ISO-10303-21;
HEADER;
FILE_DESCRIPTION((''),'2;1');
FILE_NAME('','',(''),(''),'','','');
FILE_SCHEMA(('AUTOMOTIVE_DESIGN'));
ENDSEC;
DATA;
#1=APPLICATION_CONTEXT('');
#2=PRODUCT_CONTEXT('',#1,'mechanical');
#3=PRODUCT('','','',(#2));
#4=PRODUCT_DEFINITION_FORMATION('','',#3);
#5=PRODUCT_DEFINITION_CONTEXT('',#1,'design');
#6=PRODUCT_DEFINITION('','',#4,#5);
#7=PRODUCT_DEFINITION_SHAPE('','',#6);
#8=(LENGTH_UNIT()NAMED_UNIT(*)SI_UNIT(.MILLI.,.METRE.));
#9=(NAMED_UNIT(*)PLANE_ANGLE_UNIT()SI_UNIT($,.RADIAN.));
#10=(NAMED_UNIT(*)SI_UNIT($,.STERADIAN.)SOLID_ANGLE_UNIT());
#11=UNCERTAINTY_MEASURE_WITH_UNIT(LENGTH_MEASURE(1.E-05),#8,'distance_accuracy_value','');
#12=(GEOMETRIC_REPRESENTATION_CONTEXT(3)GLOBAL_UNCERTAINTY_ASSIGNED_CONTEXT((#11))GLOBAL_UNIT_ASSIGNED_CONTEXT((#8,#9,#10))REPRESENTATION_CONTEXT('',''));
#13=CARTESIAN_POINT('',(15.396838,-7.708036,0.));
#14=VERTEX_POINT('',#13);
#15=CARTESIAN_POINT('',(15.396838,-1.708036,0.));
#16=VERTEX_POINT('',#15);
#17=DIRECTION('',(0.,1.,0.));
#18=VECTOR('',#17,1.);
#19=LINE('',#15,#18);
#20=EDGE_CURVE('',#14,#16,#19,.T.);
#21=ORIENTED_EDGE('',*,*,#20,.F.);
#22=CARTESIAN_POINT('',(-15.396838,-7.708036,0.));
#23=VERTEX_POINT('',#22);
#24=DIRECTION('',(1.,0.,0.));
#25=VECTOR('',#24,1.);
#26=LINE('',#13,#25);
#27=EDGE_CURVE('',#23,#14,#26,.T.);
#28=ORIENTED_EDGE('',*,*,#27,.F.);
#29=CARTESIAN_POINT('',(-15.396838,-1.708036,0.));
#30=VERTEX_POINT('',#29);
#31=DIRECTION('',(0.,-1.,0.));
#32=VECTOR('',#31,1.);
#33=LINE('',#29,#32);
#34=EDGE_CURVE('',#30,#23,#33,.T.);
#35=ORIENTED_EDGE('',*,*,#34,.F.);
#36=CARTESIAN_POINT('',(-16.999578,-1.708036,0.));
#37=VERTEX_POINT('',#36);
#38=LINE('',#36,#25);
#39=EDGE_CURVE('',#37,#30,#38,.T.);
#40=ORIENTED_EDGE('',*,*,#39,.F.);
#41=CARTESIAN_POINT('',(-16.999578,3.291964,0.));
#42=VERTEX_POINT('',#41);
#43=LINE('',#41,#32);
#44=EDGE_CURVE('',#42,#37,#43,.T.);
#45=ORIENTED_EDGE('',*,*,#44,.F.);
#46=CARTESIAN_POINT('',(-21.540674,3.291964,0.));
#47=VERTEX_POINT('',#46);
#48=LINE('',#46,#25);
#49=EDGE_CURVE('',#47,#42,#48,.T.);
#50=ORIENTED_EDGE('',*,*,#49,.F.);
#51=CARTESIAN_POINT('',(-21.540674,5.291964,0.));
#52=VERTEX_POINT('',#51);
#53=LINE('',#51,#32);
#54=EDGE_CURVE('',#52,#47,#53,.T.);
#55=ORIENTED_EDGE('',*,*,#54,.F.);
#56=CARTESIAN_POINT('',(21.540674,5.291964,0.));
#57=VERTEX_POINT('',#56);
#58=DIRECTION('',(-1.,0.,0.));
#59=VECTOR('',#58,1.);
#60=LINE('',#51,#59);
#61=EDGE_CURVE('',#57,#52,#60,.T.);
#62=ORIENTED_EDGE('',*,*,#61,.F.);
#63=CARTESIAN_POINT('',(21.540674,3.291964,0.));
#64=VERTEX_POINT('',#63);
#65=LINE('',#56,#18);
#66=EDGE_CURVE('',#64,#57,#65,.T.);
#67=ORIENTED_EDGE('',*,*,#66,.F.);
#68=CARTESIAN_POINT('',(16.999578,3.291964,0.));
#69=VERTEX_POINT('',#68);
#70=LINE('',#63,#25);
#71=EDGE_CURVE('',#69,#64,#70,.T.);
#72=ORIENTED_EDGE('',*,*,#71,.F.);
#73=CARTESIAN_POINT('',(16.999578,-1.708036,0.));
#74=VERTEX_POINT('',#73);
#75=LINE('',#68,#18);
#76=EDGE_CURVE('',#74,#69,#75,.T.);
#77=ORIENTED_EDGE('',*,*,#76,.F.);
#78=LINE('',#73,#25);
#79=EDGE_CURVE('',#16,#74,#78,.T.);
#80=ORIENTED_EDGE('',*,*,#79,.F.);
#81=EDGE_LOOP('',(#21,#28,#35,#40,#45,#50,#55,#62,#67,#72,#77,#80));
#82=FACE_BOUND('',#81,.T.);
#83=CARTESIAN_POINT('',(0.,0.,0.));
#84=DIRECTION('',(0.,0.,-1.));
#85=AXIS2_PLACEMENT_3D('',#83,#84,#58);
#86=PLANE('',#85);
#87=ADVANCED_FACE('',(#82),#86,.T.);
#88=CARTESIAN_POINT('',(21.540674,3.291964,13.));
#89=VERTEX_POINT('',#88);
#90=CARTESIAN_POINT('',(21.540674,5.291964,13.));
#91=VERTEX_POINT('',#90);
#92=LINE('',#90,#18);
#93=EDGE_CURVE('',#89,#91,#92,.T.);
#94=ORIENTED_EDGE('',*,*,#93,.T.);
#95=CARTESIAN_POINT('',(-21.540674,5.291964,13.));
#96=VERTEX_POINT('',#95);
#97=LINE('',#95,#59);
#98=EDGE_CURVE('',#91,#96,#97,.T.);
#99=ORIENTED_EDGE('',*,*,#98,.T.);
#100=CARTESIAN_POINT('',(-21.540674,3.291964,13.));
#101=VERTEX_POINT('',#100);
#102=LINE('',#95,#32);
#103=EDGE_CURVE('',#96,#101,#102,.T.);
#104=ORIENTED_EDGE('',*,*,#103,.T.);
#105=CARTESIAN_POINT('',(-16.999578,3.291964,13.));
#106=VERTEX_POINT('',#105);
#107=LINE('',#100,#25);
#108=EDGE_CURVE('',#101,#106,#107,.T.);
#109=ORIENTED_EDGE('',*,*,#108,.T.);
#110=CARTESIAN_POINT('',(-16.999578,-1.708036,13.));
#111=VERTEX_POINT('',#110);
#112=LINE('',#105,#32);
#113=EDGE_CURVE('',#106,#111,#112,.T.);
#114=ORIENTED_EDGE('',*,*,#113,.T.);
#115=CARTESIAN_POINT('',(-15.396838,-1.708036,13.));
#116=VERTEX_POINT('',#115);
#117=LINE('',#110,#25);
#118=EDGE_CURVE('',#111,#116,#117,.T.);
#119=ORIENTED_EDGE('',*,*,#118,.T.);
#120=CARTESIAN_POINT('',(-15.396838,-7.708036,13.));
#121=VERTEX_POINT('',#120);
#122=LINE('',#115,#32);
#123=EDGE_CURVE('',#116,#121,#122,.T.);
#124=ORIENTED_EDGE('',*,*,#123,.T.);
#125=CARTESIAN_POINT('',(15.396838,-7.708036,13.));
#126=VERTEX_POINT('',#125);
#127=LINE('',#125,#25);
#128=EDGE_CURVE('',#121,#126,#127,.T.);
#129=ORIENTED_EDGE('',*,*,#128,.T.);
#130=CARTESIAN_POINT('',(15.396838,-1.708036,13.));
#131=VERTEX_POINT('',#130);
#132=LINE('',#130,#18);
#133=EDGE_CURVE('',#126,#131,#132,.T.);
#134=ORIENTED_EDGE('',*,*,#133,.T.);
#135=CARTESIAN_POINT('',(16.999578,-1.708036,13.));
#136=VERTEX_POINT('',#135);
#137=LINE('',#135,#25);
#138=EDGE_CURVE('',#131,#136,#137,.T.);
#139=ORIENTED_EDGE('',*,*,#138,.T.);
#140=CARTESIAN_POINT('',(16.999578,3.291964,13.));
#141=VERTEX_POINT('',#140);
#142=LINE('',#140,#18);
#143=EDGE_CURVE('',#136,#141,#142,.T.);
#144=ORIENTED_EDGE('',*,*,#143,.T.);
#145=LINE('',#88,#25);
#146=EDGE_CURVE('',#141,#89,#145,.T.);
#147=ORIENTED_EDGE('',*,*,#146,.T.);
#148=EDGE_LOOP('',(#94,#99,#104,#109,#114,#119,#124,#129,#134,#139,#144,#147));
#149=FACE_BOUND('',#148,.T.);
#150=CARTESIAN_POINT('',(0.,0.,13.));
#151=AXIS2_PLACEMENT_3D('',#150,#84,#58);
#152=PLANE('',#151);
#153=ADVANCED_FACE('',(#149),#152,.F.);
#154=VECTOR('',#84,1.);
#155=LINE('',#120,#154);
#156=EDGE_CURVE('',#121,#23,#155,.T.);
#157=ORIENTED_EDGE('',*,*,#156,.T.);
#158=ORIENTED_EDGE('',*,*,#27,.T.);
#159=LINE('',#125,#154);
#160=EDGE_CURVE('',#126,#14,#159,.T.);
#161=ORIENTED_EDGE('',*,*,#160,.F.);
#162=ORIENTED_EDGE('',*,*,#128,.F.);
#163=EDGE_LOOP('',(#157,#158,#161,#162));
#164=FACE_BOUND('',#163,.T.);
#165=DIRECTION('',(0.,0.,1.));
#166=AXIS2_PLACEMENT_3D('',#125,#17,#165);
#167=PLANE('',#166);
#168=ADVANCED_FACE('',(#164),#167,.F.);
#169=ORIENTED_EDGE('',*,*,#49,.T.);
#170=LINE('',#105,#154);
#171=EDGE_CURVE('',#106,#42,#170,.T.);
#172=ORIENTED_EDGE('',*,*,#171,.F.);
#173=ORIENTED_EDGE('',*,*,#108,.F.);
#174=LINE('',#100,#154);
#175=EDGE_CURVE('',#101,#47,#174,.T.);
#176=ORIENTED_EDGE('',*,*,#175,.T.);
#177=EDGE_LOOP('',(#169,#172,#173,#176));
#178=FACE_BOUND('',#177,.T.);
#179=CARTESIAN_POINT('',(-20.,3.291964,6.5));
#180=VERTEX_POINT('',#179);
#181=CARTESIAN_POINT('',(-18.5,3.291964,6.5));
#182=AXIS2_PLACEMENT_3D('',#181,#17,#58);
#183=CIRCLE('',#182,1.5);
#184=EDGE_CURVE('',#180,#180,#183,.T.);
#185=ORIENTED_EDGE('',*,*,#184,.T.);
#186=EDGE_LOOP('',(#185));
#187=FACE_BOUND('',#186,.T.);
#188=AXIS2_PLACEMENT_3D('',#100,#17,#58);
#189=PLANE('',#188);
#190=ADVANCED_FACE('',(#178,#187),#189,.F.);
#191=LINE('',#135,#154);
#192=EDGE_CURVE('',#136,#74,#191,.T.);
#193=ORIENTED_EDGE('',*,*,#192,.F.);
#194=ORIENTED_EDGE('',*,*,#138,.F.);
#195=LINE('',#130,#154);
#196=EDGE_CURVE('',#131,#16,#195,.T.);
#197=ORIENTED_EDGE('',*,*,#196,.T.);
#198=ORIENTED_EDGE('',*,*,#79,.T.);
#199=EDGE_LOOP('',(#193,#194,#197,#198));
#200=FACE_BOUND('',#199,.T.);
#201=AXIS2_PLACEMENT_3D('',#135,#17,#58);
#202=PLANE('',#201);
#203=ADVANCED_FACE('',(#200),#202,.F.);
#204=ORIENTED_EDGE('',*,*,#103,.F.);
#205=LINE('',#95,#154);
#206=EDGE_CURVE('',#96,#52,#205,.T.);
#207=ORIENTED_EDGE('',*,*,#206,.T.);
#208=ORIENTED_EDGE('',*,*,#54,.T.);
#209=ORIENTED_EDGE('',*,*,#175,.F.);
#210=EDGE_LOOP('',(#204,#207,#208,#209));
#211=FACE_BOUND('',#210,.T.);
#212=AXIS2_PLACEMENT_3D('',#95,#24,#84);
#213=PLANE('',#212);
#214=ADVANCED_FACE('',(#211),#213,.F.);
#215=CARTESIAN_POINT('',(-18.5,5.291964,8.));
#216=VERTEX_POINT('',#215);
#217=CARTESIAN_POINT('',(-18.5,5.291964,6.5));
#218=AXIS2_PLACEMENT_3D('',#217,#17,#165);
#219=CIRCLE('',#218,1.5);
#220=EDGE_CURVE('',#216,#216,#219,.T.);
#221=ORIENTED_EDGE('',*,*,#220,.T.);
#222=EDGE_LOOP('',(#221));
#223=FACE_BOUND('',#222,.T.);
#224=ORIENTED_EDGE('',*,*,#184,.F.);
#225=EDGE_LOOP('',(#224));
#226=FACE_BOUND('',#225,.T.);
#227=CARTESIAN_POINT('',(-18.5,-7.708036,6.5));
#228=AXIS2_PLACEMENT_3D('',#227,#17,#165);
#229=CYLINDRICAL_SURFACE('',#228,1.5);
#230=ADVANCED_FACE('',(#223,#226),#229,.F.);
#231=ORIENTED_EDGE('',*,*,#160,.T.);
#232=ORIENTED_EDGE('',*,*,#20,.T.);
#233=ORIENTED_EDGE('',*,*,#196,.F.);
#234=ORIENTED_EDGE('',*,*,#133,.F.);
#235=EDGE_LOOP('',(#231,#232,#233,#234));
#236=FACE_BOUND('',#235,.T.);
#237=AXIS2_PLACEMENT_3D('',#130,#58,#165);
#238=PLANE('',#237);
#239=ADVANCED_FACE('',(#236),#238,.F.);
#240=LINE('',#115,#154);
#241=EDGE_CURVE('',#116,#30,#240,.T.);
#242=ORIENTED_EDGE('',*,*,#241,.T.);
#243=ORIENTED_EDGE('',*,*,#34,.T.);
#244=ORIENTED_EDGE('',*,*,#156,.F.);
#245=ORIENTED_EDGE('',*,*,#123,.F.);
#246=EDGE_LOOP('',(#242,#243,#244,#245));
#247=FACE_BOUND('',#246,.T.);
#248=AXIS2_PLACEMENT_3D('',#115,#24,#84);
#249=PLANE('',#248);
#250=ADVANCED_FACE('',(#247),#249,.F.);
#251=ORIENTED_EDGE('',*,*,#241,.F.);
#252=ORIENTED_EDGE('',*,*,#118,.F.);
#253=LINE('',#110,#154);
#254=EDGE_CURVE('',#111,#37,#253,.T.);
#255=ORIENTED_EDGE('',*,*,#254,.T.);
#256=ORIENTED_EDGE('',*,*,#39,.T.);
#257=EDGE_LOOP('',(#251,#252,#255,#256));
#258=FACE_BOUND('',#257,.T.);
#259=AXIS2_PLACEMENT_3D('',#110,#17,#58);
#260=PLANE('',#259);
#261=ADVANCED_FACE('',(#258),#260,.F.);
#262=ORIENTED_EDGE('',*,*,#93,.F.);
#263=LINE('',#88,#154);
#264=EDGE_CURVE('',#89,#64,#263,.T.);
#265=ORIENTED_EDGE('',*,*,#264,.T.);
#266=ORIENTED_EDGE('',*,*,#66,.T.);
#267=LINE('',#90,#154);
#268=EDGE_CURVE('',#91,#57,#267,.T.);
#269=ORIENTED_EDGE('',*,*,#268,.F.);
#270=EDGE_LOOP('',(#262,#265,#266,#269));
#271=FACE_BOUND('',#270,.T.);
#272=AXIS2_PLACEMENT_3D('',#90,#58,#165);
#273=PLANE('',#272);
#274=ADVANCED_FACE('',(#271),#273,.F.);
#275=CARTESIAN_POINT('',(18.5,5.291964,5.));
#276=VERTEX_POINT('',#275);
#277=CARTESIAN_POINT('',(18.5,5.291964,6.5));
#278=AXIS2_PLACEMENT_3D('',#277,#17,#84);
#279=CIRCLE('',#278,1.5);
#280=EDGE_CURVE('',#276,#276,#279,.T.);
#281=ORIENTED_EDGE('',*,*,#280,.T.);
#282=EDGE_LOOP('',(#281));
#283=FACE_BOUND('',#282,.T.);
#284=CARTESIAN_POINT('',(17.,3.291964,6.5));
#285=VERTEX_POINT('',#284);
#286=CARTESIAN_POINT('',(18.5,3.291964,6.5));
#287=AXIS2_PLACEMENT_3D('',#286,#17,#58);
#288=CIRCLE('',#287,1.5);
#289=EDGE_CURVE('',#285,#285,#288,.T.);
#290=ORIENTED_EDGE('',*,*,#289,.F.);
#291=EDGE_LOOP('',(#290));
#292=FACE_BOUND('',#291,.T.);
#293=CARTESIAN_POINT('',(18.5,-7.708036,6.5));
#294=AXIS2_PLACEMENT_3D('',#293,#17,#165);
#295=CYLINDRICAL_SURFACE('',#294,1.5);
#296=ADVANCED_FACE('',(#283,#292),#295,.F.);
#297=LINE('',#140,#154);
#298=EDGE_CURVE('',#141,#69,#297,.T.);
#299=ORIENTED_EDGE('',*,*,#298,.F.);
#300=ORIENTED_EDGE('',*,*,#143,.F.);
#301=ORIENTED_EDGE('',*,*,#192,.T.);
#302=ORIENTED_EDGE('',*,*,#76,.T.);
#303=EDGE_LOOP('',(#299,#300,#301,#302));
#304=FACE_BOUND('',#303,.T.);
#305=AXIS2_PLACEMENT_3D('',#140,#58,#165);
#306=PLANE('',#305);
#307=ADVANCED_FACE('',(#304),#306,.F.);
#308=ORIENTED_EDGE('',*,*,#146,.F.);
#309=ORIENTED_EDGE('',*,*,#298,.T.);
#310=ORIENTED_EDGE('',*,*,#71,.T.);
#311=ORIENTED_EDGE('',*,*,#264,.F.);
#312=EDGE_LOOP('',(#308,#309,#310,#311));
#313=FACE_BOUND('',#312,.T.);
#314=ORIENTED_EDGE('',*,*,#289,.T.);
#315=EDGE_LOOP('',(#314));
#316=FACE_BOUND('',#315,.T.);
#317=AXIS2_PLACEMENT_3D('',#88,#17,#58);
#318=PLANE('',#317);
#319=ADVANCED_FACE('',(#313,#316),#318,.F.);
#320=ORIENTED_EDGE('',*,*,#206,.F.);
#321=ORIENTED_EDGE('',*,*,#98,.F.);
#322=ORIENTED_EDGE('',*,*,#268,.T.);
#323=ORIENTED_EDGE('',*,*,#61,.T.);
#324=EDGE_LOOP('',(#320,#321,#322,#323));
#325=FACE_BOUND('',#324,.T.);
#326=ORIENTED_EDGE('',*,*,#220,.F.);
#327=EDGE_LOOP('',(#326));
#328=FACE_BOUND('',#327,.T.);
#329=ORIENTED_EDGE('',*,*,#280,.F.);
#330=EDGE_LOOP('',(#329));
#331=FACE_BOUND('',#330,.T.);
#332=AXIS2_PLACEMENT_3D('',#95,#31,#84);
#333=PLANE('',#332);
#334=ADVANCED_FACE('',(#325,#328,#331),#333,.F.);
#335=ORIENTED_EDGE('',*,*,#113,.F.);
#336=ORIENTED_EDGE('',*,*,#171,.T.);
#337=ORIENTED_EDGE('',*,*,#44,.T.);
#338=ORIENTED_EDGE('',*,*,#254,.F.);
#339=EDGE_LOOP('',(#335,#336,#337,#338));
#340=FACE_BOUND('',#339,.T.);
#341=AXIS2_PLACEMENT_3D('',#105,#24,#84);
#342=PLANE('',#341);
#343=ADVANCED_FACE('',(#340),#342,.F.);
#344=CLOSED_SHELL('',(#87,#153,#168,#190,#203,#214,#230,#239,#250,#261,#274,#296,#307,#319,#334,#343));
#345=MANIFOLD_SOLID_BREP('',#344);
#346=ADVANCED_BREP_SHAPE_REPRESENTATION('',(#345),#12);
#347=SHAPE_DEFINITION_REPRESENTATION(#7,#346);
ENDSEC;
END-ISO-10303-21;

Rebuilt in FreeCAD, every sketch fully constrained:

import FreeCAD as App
import Part
import Sketcher


def add_polygon(sketch, points):
    """Adds a closed chain of lines whose ends are joined by coincident constraints."""
    first, n = sketch.GeometryCount, len(points)
    for a, b in zip(points, points[1:] + points[:1]):
        sketch.addGeometry(Part.LineSegment(App.Vector(*a, 0), App.Vector(*b, 0)), False)
    for i in range(n):
        sketch.addConstraint(Sketcher.Constraint("Coincident", first + i, 2, first + (i + 1) % n, 1))

doc = App.newDocument("Part")
body = doc.addObject("PartDesign::Body", "Body")

# Sketch on XY plane
sketch1 = doc.addObject("Sketcher::SketchObject", "Sketch")
body.addObject(sketch1)
sketch1.AttachmentSupport = (doc.XY_Plane, [""])
sketch1.MapMode = "FlatFace"
add_polygon(sketch1, [(21.540674, 5.291964), (-21.540674, 5.291964), (-21.540674, 3.291964), (-16.999578, 3.291964), (-16.999578, -1.708036), (-15.396838, -1.708036), (-15.396838, -7.708036), (15.396838, -7.708036), (15.396838, -1.708036), (16.999578, -1.708036), (16.999578, 3.291964), (21.540674, 3.291964)])  # lines 0-11
sketch1.addConstraint(Sketcher.Constraint("Horizontal", 0))
sketch1.addConstraint(Sketcher.Constraint("Vertical", 1))
sketch1.addConstraint(Sketcher.Constraint("Horizontal", 2))
sketch1.addConstraint(Sketcher.Constraint("Vertical", 3))
sketch1.addConstraint(Sketcher.Constraint("Horizontal", 4))
sketch1.addConstraint(Sketcher.Constraint("Vertical", 5))
sketch1.addConstraint(Sketcher.Constraint("Horizontal", 6))
sketch1.addConstraint(Sketcher.Constraint("Vertical", 7))
sketch1.addConstraint(Sketcher.Constraint("Horizontal", 8))
sketch1.addConstraint(Sketcher.Constraint("Vertical", 9))
sketch1.addConstraint(Sketcher.Constraint("Horizontal", 10))
sketch1.addConstraint(Sketcher.Constraint("Vertical", 11))
sketch1.addConstraint(Sketcher.Constraint("Symmetric", 4, 2, 7, 2, -2))
sketch1.addConstraint(Sketcher.Constraint("Symmetric", 2, 2, 9, 2, -2))
sketch1.addConstraint(Sketcher.Constraint("Equal", 2, 10))
sketch1.addConstraint(Sketcher.Constraint("DistanceY", 1, 2, 1, 1, 2.0))
sketch1.addConstraint(Sketcher.Constraint("DistanceY", 3, 2, 3, 1, 5.0))
sketch1.addConstraint(Sketcher.Constraint("DistanceY", 5, 2, 5, 1, 6.0))
sketch1.addConstraint(Sketcher.Constraint("DistanceX", 4, 1, 4, 2, 1.60274))
sketch1.addConstraint(Sketcher.Constraint("DistanceX", 0, 2, 0, 1, 43.081348))
sketch1.addConstraint(Sketcher.Constraint("DistanceX", 2, 1, 2, 2, 4.541096))
sketch1.addConstraint(Sketcher.Constraint("DistanceY", -1, 1, 0, 2, 5.291964))
pad1 = doc.addObject("PartDesign::Pad", "Pad")
body.addObject(pad1)
pad1.Profile = sketch1
pad1.Length = 13

# Sketch on XZ plane
sketch2 = doc.addObject("Sketcher::SketchObject", "Sketch001")
body.addObject(sketch2)
sketch2.AttachmentSupport = (doc.XZ_Plane, [""])
sketch2.MapMode = "FlatFace"
sketch2.AttachmentOffset = App.Placement(App.Vector(0, 0, -5.291964), App.Rotation())
sketch2.addGeometry(Part.Circle(App.Vector(-18.5, 6.5, 0), App.Vector(0, 0, 1), 1.5), False)
sketch2.addGeometry(Part.Circle(App.Vector(18.5, 6.5, 0), App.Vector(0, 0, 1), 1.5), False)
sketch2.addConstraint(Sketcher.Constraint("Equal", 0, 1))
sketch2.addConstraint(Sketcher.Constraint("Symmetric", 0, 3, 1, 3, -2))
sketch2.addConstraint(Sketcher.Constraint("Diameter", 0, 3.0))
sketch2.addConstraint(Sketcher.Constraint("DistanceX", 0, 3, 1, 3, 37.0))
sketch2.addConstraint(Sketcher.Constraint("DistanceY", -1, 1, 0, 3, 6.5))
pocket1 = doc.addObject("PartDesign::Pocket", "Pocket")
body.addObject(pocket1)
pocket1.Profile = sketch2
pocket1.Type = "ThroughAll"
pocket1.Reversed = True

doc.recompute()
